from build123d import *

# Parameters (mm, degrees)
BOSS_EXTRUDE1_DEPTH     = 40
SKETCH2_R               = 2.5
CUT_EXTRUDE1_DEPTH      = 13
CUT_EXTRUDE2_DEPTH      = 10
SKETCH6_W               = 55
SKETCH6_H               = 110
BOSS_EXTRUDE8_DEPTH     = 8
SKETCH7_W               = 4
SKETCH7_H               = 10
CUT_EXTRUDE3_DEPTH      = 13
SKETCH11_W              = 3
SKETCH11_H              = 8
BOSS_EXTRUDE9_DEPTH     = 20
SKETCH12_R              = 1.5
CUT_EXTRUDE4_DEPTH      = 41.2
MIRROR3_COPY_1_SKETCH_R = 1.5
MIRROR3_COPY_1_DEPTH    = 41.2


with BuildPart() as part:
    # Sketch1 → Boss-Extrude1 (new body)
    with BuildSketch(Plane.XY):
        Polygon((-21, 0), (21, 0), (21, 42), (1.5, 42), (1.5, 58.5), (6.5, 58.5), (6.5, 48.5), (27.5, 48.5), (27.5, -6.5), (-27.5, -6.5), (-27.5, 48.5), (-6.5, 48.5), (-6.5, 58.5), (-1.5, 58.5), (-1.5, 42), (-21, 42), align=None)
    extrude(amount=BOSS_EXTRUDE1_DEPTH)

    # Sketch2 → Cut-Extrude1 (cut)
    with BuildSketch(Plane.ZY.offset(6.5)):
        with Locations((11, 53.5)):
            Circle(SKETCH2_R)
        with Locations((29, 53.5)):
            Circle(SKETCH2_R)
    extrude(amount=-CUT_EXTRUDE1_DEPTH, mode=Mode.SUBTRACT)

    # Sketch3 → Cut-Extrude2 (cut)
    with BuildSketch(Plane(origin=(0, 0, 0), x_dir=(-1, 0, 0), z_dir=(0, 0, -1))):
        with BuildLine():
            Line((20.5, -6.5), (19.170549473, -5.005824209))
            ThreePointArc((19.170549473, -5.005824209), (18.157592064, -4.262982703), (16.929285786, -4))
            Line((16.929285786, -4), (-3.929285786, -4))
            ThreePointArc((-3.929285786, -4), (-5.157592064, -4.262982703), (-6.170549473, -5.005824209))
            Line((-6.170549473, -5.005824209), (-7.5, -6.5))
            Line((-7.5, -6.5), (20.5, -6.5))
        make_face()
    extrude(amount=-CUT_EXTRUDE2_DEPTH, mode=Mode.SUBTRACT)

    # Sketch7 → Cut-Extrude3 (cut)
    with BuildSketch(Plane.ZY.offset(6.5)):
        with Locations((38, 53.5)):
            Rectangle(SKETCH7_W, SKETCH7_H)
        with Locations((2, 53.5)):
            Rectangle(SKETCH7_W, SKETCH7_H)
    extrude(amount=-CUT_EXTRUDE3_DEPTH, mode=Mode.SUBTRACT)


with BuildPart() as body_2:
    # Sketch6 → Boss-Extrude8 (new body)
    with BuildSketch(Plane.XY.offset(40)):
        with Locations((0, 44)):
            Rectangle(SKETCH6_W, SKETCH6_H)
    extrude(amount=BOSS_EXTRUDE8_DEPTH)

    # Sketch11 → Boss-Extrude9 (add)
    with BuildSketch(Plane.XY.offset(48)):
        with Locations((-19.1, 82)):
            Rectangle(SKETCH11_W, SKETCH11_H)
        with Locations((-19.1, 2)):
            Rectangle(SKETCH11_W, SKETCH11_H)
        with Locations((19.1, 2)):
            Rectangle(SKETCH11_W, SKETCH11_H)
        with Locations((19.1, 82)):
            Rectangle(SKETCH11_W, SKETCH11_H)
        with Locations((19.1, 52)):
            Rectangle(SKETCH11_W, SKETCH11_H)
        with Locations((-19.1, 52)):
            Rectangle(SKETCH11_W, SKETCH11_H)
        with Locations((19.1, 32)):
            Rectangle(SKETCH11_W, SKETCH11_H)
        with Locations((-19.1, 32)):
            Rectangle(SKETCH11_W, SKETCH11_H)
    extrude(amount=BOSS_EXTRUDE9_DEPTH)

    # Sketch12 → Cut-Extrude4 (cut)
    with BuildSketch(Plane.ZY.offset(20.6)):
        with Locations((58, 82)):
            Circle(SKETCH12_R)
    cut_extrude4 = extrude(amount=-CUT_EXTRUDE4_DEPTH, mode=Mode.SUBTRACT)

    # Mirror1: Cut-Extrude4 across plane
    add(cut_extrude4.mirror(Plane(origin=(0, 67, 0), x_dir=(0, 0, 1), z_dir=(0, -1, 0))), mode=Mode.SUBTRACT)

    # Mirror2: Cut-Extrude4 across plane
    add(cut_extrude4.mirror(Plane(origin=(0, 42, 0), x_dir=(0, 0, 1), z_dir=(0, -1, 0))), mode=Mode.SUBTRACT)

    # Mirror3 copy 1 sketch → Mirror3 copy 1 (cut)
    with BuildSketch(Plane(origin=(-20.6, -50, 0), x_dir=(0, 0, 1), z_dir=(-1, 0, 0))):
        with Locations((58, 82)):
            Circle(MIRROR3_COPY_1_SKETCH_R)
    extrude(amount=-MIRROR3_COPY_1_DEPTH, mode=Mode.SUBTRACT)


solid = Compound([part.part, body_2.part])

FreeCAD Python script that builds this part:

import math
import FreeCAD as App
import Part
import Sketcher
Q = App.Units.Quantity


def add_polygon(sketch, points):
    """Adds a closed chain of lines whose ends are joined by coincident constraints."""
    first, n = sketch.GeometryCount, len(points)
    for a, b in zip(points, points[1:] + points[:1]):
        sketch.addGeometry(Part.LineSegment(App.Vector(*a, 0), App.Vector(*b, 0)), False)
    for i in range(n):
        sketch.addConstraint(Sketcher.Constraint("Coincident", first + i, 2, first + (i + 1) % n, 1))

doc = App.newDocument("Part")
body = doc.addObject("PartDesign::Body", "Body")

sketch1 = doc.addObject("Sketcher::SketchObject", "Sketch")
body.addObject(sketch1)
sketch1.AttachmentSupport = (doc.XY_Plane, [""])
sketch1.MapMode = "FlatFace"
add_polygon(sketch1, [(21, 0), (-21, 0), (-21, 42), (-2, 42), (-2, 58), (-6, 58), (-6, 48), (-28, 48), (-28, -6), (28, -6), (28, 48), (6, 48), (6, 58), (2, 58), (2, 42), (21, 42)])
sketch1.addConstraint([
    Sketcher.Constraint("Horizontal", 0),
    Sketcher.Constraint("Vertical", 1),
    Sketcher.Constraint("Horizontal", 2),
    Sketcher.Constraint("Vertical", 3),
    Sketcher.Constraint("Horizontal", 4),
    Sketcher.Constraint("Vertical", 5),
    Sketcher.Constraint("Horizontal", 6),
    Sketcher.Constraint("Vertical", 7),
    Sketcher.Constraint("Horizontal", 8),
    Sketcher.Constraint("Vertical", 9),
    Sketcher.Constraint("Horizontal", 10),
    Sketcher.Constraint("Vertical", 11),
    Sketcher.Constraint("Horizontal", 12),
    Sketcher.Constraint("Vertical", 13),
    Sketcher.Constraint("Horizontal", 14),
    Sketcher.Constraint("Vertical", 15),
    Sketcher.Constraint("Symmetric", 0, 2, 15, 2, -1, 1),
    Sketcher.Constraint("Symmetric", 6, 2, 9, 2, -2),
    Sketcher.Constraint("Symmetric", 4, 2, 11, 2, -2),
    Sketcher.Constraint("Symmetric", 2, 2, 13, 2, -2),
    Sketcher.Constraint("Equal", 0, 1),
    Sketcher.Constraint("Equal", 8, 7),
    Sketcher.Constraint("DistanceX", 0, 2, 0, 1, Q("42 mm")),
    Sketcher.Constraint("DistanceX", 4, 2, 4, 1, Q("5 mm")),
    Sketcher.Constraint("DistanceX", 6, 2, 6, 1, Q("21 mm")),
    Sketcher.Constraint("DistanceX", 8, 1, 8, 2, Q("55 mm")),
    Sketcher.Constraint("DistanceY", 5, 2, 5, 1, Q("10 mm")),
    Sketcher.Constraint("DistanceY", 3, 1, 3, 2, Q("16.5 mm")),
])
pad1 = doc.addObject("PartDesign::Pad", "Pad")
body.addObject(pad1)
pad1.Profile = sketch1
pad1.Length = 40

sketch2 = doc.addObject("Sketcher::SketchObject", "Sketch001")
body.addObject(sketch2)
sketch2.AttachmentSupport = (doc.YZ_Plane, [""])
sketch2.MapMode = "FlatFace"
sketch2.AttachmentOffset = App.Placement(App.Vector(0, 0, -6.5), App.Rotation())
sketch2.addGeometry([
    Part.Circle(App.Vector(53.5, 11, 0), App.Vector(0, 0, 1), 2.5),
    Part.Circle(App.Vector(53.5, 29, 0), App.Vector(0, 0, 1), 2.5),
], False)
sketch2.addConstraint([
    Sketcher.Constraint("Equal", 0, 1),
    Sketcher.Constraint("Vertical", 0, 3, 1, 3),
    Sketcher.Constraint("Diameter", 0, Q("5 mm")),
    Sketcher.Constraint("DistanceY", -1, 1, 0, 3, Q("11 mm")),
    Sketcher.Constraint("DistanceY", -1, 1, 1, 3, Q("29 mm")),
    Sketcher.Constraint("DistanceX", -1, 1, 0, 3, Q("53.5 mm")),
])
pocket1 = doc.addObject("PartDesign::Pocket", "Pocket")
body.addObject(pocket1)
pocket1.Profile = sketch2
pocket1.Length = 13
pocket1.Reversed = True

sketch3 = doc.addObject("Sketcher::SketchObject", "Sketch002")
body.addObject(sketch3)
sketch3.AttachmentSupport = (doc.XY_Plane, [""])
sketch3.MapMode = "FlatFace"
sketch3.addGeometry([
    Part.LineSegment(App.Vector(-20.5, -6.5, 0), App.Vector(-19.2, -5, 0)),
    Part.ArcOfCircle(Part.Circle(App.Vector(-16.9, -7, 0), App.Vector(0, 0, 1), 3), math.radians(90), math.radians(138)),
    Part.LineSegment(App.Vector(-16.9, -4, 0), App.Vector(3.9, -4, 0)),
    Part.ArcOfCircle(Part.Circle(App.Vector(3.9, -7, 0), App.Vector(0, 0, 1), 3), math.radians(42), math.radians(90)),
    Part.LineSegment(App.Vector(6.2, -5, 0), App.Vector(7.5, -6.5, 0)),
    Part.LineSegment(App.Vector(7.5, -6.5, 0), App.Vector(-20.5, -6.5, 0)),
], False)
sketch3.addConstraint([
    Sketcher.Constraint("Tangent", 0, 2, 1, 2),
    Sketcher.Constraint("Tangent", 1, 1, 2, 1),
    Sketcher.Constraint("Tangent", 2, 2, 3, 2),
    Sketcher.Constraint("Tangent", 3, 1, 4, 1),
    Sketcher.Constraint("Coincident", 4, 2, 5, 1),
    Sketcher.Constraint("Coincident", 5, 2, 0, 1),
    Sketcher.Constraint("Horizontal", 2),
    Sketcher.Constraint("Horizontal", 5),
    Sketcher.Constraint("Equal", 1, 3),
    Sketcher.Constraint("Horizontal", 0, 2, 3, 1),
    Sketcher.Constraint("Radius", 1, Q("3 mm")),
    Sketcher.Constraint("DistanceX", 5, 2, 5, 1, Q("28 mm")),
    Sketcher.Constraint("Distance", 0, Q("2 mm")),
    Sketcher.Constraint("DistanceY", 1, 3, -1, 1, Q("7 mm")),
    Sketcher.Constraint("DistanceX", -1, 1, 4, 2, Q("7.5 mm")),
    Sketcher.Constraint("DistanceY", 4, 2, -1, 1, Q("6.5 mm")),
])
pocket2 = doc.addObject("PartDesign::Pocket", "Pocket001")
body.addObject(pocket2)
pocket2.Profile = sketch3
pocket2.Length = 10
pocket2.Reversed = True

sketch4 = doc.addObject("Sketcher::SketchObject", "Sketch003")
body.addObject(sketch4)
sketch4.AttachmentSupport = (doc.YZ_Plane, [""])
sketch4.MapMode = "FlatFace"
sketch4.AttachmentOffset = App.Placement(App.Vector(0, 0, -6.5), App.Rotation())
add_polygon(sketch4, [(58.5, 36), (48.5, 36), (48.5, 40), (58.5, 40)])
add_polygon(sketch4, [(58.5, 0), (48.5, 0), (48.5, 4), (58.5, 4)])
sketch4.addConstraint([
    Sketcher.Constraint("Horizontal", 0),
    Sketcher.Constraint("Vertical", 1),
    Sketcher.Constraint("Horizontal", 2),
    Sketcher.Constraint("Vertical", 3),
    Sketcher.Constraint("Horizontal", 4),
    Sketcher.Constraint("Vertical", 5),
    Sketcher.Constraint("Horizontal", 6),
    Sketcher.Constraint("Vertical", 7),
    Sketcher.Constraint("PointOnObject", 4, 2, -1),
    Sketcher.Constraint("Vertical", 1, 2, 4, 2),
    Sketcher.Constraint("Vertical", 3, 2, 6, 2),
    Sketcher.Constraint("Equal", 3, 5),
    Sketcher.Constraint("DistanceX", 0, 2, 0, 1, Q("10 mm")),
    Sketcher.Constraint("DistanceY", 1, 1, 1, 2, Q("4 mm")),
    Sketcher.Constraint("DistanceY", -1, 1, 0, 2, Q("36 mm")),
    Sketcher.Constraint("DistanceX", -1, 1, 0, 2, Q("48.5 mm")),
])
pocket3 = doc.addObject("PartDesign::Pocket", "Pocket002")
body.addObject(pocket3)
pocket3.Profile = sketch4
pocket3.Length = 13
pocket3.Reversed = True
body2 = doc.addObject("PartDesign::Body", "Body001")

sketch5 = doc.addObject("Sketcher::SketchObject", "Sketch004")
body2.addObject(sketch5)
sketch5.AttachmentSupport = (doc.getObject("XY_Plane001"), [""])
sketch5.MapMode = "FlatFace"
sketch5.AttachmentOffset = App.Placement(App.Vector(0, 0, 40), App.Rotation())
add_polygon(sketch5, [(-28, 99), (-28, -11), (28, -11), (28, 99)])
sketch5.addConstraint([
    Sketcher.Constraint("Vertical", 0),
    Sketcher.Constraint("Horizontal", 1),
    Sketcher.Constraint("Vertical", 2),
    Sketcher.Constraint("Horizontal", 3),
    Sketcher.Constraint("DistanceX", 1, 1, 1, 2, Q("55 mm")),
    Sketcher.Constraint("DistanceY", 0, 2, 0, 1, Q("110 mm")),
    Sketcher.Constraint("DistanceY", 0, 2, -1, 1, Q("11 mm")),
    Sketcher.Constraint("DistanceX", 0, 2, -1, 1, Q("27.5 mm")),
])
pad2 = doc.addObject("PartDesign::Pad", "Pad001")
body2.addObject(pad2)
pad2.Profile = sketch5
pad2.Length = 8

sketch6 = doc.addObject("Sketcher::SketchObject", "Sketch005")
body2.addObject(sketch6)
sketch6.AttachmentSupport = (doc.getObject("XY_Plane001"), [""])
sketch6.MapMode = "FlatFace"
sketch6.AttachmentOffset = App.Placement(App.Vector(0, 0, 48), App.Rotation())
add_polygon(sketch6, [(-20.6, 86), (-20.6, 78), (-17.6, 78), (-17.6, 86)])
add_polygon(sketch6, [(-20.6, 6), (-20.6, -2), (-17.6, -2), (-17.6, 6)])
add_polygon(sketch6, [(17.6, 6), (17.6, -2), (20.6, -2), (20.6, 6)])
add_polygon(sketch6, [(17.6, 86), (17.6, 78), (20.6, 78), (20.6, 86)])
add_polygon(sketch6, [(17.6, 56), (17.6, 48), (20.6, 48), (20.6, 56)])
add_polygon(sketch6, [(-20.6, 56), (-20.6, 48), (-17.6, 48), (-17.6, 56)])
add_polygon(sketch6, [(17.6, 36), (17.6, 28), (20.6, 28), (20.6, 36)])
add_polygon(sketch6, [(-20.6, 36), (-20.6, 28), (-17.6, 28), (-17.6, 36)])
sketch6.addConstraint([
    Sketcher.Constraint("Vertical", 0),
    Sketcher.Constraint("Horizontal", 1),
    Sketcher.Constraint("Vertical", 2),
    Sketcher.Constraint("Horizontal", 3),
    Sketcher.Constraint("Vertical", 4),
    Sketcher.Constraint("Horizontal", 5),
    Sketcher.Constraint("Vertical", 6),
    Sketcher.Constraint("Horizontal", 7),
    Sketcher.Constraint("Vertical", 8),
    Sketcher.Constraint("Horizontal", 9),
    Sketcher.Constraint("Vertical", 10),
    Sketcher.Constraint("Horizontal", 11),
    Sketcher.Constraint("Vertical", 12),
    Sketcher.Constraint("Horizontal", 13),
    Sketcher.Constraint("Vertical", 14),
    Sketcher.Constraint("Horizontal", 15),
    Sketcher.Constraint("Vertical", 16),
    Sketcher.Constraint("Horizontal", 17),
    Sketcher.Constraint("Vertical", 18),
    Sketcher.Constraint("Horizontal", 19),
    Sketcher.Constraint("Vertical", 20),
    Sketcher.Constraint("Horizontal", 21),
    Sketcher.Constraint("Vertical", 22),
    Sketcher.Constraint("Horizontal", 23),
    Sketcher.Constraint("Vertical", 24),
    Sketcher.Constraint("Horizontal", 25),
    Sketcher.Constraint("Vertical", 26),
    Sketcher.Constraint("Horizontal", 27),
    Sketcher.Constraint("Vertical", 28),
    Sketcher.Constraint("Horizontal", 29),
    Sketcher.Constraint("Vertical", 30),
    Sketcher.Constraint("Horizontal", 31),
    Sketcher.Constraint("Symmetric", 5, 2, 8, 2, -2),
    Sketcher.Constraint("Symmetric", 7, 2, 10, 2, -2),
    Sketcher.Constraint("Symmetric", 1, 2, 12, 2, -2),
    Sketcher.Constraint("Symmetric", 3, 2, 14, 2, -2),
    Sketcher.Constraint("Symmetric", 17, 2, 20, 2, -2),
    Sketcher.Constraint("Symmetric", 19, 2, 22, 2, -2),
    Sketcher.Constraint("Symmetric", 25, 2, 28, 2, -2),
    Sketcher.Constraint("Symmetric", 27, 2, 30, 2, -2),
    Sketcher.Constraint("Vertical", 3, 2, 4, 2),
    Sketcher.Constraint("Vertical", 2, 2, 5, 2),
    Sketcher.Constraint("Vertical", 15, 2, 16, 2),
    Sketcher.Constraint("Vertical", 14, 2, 17, 2),
    Sketcher.Constraint("Vertical", 19, 2, 24, 2),
    Sketcher.Constraint("Vertical", 18, 2, 25, 2),
    Sketcher.Constraint("Equal", 2, 4),
    Sketcher.Constraint("Equal", 14, 16),
    Sketcher.Constraint("Equal", 22, 24),
    Sketcher.Constraint("DistanceX", 1, 1, 1, 2, Q("3 mm")),
    Sketcher.Constraint("DistanceY", 0, 2, 0, 1, Q("8 mm")),
    Sketcher.Constraint("DistanceY", -1, 1, 0, 2, Q("78 mm")),
    Sketcher.Constraint("DistanceY", 4, 2, -1, 1, Q("2 mm")),
    Sketcher.Constraint("DistanceY", -1, 1, 16, 2, Q("48 mm")),
    Sketcher.Constraint("DistanceY", -1, 1, 24, 2, Q("28 mm")),
    Sketcher.Constraint("DistanceX", 0, 2, -1, 1, Q("20.6 mm")),
])
pad3 = doc.addObject("PartDesign::Pad", "Pad002")
body2.addObject(pad3)
pad3.Profile = sketch6
pad3.Length = 20

sketch7 = doc.addObject("Sketcher::SketchObject", "Sketch006")
body2.addObject(sketch7)
sketch7.AttachmentSupport = (doc.getObject("YZ_Plane001"), [""])
sketch7.MapMode = "FlatFace"
sketch7.AttachmentOffset = App.Placement(App.Vector(0, 0, -20.6), App.Rotation())
sketch7.addGeometry(Part.Circle(App.Vector(82, 58, 0), App.Vector(0, 0, 1), 1.5), False)
sketch7.addConstraint([
    Sketcher.Constraint("Diameter", 0, Q("3 mm")),
    Sketcher.Constraint("DistanceX", -1, 1, 0, 3, Q("82 mm")),
    Sketcher.Constraint("DistanceY", -1, 1, 0, 3, Q("58 mm")),
])
pocket4 = doc.addObject("PartDesign::Pocket", "Pocket003")
body2.addObject(pocket4)
pocket4.Profile = sketch7
pocket4.Length = 41.2
pocket4.Reversed = True
doc.recompute()

datumplane = doc.addObject("PartDesign::Plane", "DatumPlane")
body2.addObject(datumplane)
datumplane.AttachmentSupport = (doc.getObject("XZ_Plane001"), [""])
datumplane.MapMode = "FlatFace"
datumplane.AttachmentOffset = App.Placement(App.Vector(0, 0, -67), App.Rotation())
mirrored = doc.addObject("PartDesign::Mirrored", "Mirrored")
body2.addObject(mirrored)
mirrored.Originals = [pocket4]
mirrored.MirrorPlane = (datumplane, [""])
body2.Tip = mirrored
doc.recompute()

datumplane2 = doc.addObject("PartDesign::Plane", "DatumPlane001")
body2.addObject(datumplane2)
datumplane2.AttachmentSupport = (doc.getObject("XZ_Plane001"), [""])
datumplane2.MapMode = "FlatFace"
datumplane2.AttachmentOffset = App.Placement(App.Vector(0, 0, -42), App.Rotation())
mirrored2 = doc.addObject("PartDesign::Mirrored", "Mirrored001")
body2.addObject(mirrored2)
mirrored2.Originals = [pocket4]
mirrored2.MirrorPlane = (datumplane2, [""])
body2.Tip = mirrored2

sketch8 = doc.addObject("Sketcher::SketchObject", "Sketch007")
body2.addObject(sketch8)
sketch8.AttachmentSupport = (doc.getObject("YZ_Plane001"), [""])
sketch8.MapMode = "FlatFace"
sketch8.AttachmentOffset = App.Placement(App.Vector(0, 0, -20.6), App.Rotation())
sketch8.addGeometry(Part.Circle(App.Vector(32, 58, 0), App.Vector(0, 0, 1), 1.5), False)
sketch8.addConstraint([
    Sketcher.Constraint("Diameter", 0, Q("3 mm")),
    Sketcher.Constraint("DistanceX", -1, 1, 0, 3, Q("32 mm")),
    Sketcher.Constraint("DistanceY", -1, 1, 0, 3, Q("58 mm")),
])
pocket5 = doc.addObject("PartDesign::Pocket", "Pocket004")
body2.addObject(pocket5)
pocket5.Profile = sketch8
pocket5.Length = 41.2
pocket5.Reversed = True

doc.recompute()
